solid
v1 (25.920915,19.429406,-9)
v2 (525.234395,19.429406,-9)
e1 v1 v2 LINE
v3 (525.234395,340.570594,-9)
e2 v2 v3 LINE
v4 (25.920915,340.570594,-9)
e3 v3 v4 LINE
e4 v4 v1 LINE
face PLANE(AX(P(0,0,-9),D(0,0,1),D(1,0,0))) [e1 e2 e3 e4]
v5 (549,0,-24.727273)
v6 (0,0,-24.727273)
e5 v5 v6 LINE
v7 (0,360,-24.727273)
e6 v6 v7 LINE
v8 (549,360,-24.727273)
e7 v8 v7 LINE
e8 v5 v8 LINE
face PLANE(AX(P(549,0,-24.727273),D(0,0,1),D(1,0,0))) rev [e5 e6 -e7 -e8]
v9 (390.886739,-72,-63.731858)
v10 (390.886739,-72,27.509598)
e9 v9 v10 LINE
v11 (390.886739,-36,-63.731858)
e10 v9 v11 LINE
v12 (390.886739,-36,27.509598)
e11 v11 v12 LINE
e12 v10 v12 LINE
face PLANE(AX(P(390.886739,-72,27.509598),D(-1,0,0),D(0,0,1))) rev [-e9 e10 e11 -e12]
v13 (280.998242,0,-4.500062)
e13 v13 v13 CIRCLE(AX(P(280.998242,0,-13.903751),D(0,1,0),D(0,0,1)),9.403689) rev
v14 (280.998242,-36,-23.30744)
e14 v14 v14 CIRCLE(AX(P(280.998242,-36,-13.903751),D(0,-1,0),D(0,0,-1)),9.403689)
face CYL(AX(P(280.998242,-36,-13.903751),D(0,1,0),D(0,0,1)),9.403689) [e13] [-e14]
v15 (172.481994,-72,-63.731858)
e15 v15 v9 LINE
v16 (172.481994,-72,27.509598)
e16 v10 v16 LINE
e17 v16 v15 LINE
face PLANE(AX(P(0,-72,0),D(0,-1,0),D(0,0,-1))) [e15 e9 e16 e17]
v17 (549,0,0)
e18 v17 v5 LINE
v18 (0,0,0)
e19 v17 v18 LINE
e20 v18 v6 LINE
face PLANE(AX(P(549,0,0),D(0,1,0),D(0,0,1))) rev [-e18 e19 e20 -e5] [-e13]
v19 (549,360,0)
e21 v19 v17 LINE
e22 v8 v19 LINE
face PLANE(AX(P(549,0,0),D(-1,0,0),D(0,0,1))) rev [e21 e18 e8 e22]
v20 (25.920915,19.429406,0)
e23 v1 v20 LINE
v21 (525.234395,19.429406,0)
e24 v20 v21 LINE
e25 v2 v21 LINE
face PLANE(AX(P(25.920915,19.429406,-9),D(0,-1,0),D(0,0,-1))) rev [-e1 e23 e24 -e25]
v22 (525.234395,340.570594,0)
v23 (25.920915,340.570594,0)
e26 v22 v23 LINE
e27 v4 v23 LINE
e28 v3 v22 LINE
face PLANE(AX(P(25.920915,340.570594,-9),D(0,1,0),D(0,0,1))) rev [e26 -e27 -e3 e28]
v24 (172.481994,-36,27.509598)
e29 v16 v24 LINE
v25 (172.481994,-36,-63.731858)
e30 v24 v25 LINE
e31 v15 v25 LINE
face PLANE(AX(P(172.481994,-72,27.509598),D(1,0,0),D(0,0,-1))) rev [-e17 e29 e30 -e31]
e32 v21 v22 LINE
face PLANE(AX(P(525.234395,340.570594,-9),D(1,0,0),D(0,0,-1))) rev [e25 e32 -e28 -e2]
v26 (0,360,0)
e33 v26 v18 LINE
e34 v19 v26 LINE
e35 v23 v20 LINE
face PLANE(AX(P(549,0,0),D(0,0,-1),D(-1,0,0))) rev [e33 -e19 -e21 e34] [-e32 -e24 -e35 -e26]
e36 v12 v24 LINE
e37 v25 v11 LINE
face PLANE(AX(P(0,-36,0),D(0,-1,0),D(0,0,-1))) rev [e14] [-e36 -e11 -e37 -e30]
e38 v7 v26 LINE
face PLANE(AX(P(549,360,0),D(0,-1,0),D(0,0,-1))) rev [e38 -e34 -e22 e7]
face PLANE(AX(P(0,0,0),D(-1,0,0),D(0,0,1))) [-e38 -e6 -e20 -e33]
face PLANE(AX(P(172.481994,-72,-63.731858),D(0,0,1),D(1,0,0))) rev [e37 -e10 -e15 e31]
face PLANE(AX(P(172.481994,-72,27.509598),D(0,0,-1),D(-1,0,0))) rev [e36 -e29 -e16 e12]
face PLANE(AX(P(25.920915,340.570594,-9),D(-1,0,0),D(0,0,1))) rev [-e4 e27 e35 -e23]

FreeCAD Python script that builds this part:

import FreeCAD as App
import Part
import Sketcher
from FreeCAD import Vector

doc = App.newDocument("Part")
body = doc.addObject("PartDesign::Body", "Body")

# Sketch on YZ plane
sketch1 = doc.addObject("Sketcher::SketchObject", "Sketch")
body.addObject(sketch1)
sketch1.AttachmentSupport = (doc.YZ_Plane, [""])
sketch1.MapMode = "FlatFace"
sketch1.addGeometry([
    Part.LineSegment(Vector(360, 0, 0), Vector(0, 0, 0)),
    Part.LineSegment(Vector(0, 0, 0), Vector(0, -24.727273, 0)),
    Part.LineSegment(Vector(0, -24.727273, 0), Vector(360, -24.727273, 0)),
    Part.LineSegment(Vector(360, -24.727273, 0), Vector(360, 0, 0)),
], False)
sketch1.addConstraint([
    Sketcher.Constraint("Coincident", 0, 2, 1, 1),
    Sketcher.Constraint("Coincident", 1, 2, 2, 1),
    Sketcher.Constraint("Coincident", 2, 2, 3, 1),
    Sketcher.Constraint("Coincident", 3, 2, 0, 1),
    Sketcher.Constraint("Horizontal", 0),
    Sketcher.Constraint("Vertical", 1),
    Sketcher.Constraint("Horizontal", 2),
    Sketcher.Constraint("Vertical", 3),
    Sketcher.Constraint("Coincident", 0, 2, -1, 1),
    Sketcher.Constraint("DistanceX", 0, 2, 0, 1, 360.0),
    Sketcher.Constraint("DistanceY", 1, 2, 1, 1, 24.727273),
])
pad1 = doc.addObject("PartDesign::Pad", "Pad")
body.addObject(pad1)
pad1.Profile = sketch1
pad1.Length = 549

# Sketch on XY plane
sketch2 = doc.addObject("Sketcher::SketchObject", "Sketch001")
body.addObject(sketch2)
sketch2.AttachmentSupport = (doc.XY_Plane, [""])
sketch2.MapMode = "FlatFace"
sketch2.addGeometry([
    Part.LineSegment(Vector(25.920915, 340.570594, 0), Vector(25.920915, 19.429406, 0)),
    Part.LineSegment(Vector(25.920915, 19.429406, 0), Vector(525.234395, 19.429406, 0)),
    Part.LineSegment(Vector(525.234395, 19.429406, 0), Vector(525.234395, 340.570594, 0)),
    Part.LineSegment(Vector(525.234395, 340.570594, 0), Vector(25.920915, 340.570594, 0)),
], False)
sketch2.addConstraint([
    Sketcher.Constraint("Coincident", 0, 2, 1, 1),
    Sketcher.Constraint("Coincident", 1, 2, 2, 1),
    Sketcher.Constraint("Coincident", 2, 2, 3, 1),
    Sketcher.Constraint("Coincident", 3, 2, 0, 1),
    Sketcher.Constraint("Vertical", 0),
    Sketcher.Constraint("Horizontal", 1),
    Sketcher.Constraint("Vertical", 2),
    Sketcher.Constraint("Horizontal", 3),
    Sketcher.Constraint("DistanceX", 1, 1, 1, 2, 499.31348),
    Sketcher.Constraint("DistanceY", 0, 2, 0, 1, 321.141188),
    Sketcher.Constraint("DistanceX", -1, 1, 0, 2, 25.920915),
    Sketcher.Constraint("DistanceY", -1, 1, 0, 2, 19.429406),
])
pocket1 = doc.addObject("PartDesign::Pocket", "Pocket")
body.addObject(pocket1)
pocket1.Profile = sketch2
pocket1.Length = 9

# Sketch on XZ plane
sketch3 = doc.addObject("Sketcher::SketchObject", "Sketch002")
body.addObject(sketch3)
sketch3.AttachmentSupport = (doc.XZ_Plane, [""])
sketch3.MapMode = "FlatFace"
sketch3.addGeometry(Part.Circle(Vector(280.998242, -13.903751, 0), Vector(0, 0, 1), 9.403689), False)
sketch3.addConstraint([
    Sketcher.Constraint("Diameter", 0, 18.807379),
    Sketcher.Constraint("DistanceX", -1, 1, 0, 3, 280.998242),
    Sketcher.Constraint("DistanceY", 0, 3, -1, 1, 13.903751),
])
pad2 = doc.addObject("PartDesign::Pad", "Pad001")
body.addObject(pad2)
pad2.Profile = sketch3
pad2.Length = 36

# Sketch on XZ plane
sketch4 = doc.addObject("Sketcher::SketchObject", "Sketch003")
body.addObject(sketch4)
sketch4.AttachmentSupport = (doc.XZ_Plane, [""])
sketch4.MapMode = "FlatFace"
sketch4.AttachmentOffset = App.Placement(Vector(0, 0, 36), App.Rotation())
sketch4.addGeometry([
    Part.LineSegment(Vector(172.481994, 27.509598, 0), Vector(172.481994, -63.731858, 0)),
    Part.LineSegment(Vector(172.481994, -63.731858, 0), Vector(390.886739, -63.731858, 0)),
    Part.LineSegment(Vector(390.886739, -63.731858, 0), Vector(390.886739, 27.509598, 0)),
    Part.LineSegment(Vector(390.886739, 27.509598, 0), Vector(172.481994, 27.509598, 0)),
], False)
sketch4.addConstraint([
    Sketcher.Constraint("Coincident", 0, 2, 1, 1),
    Sketcher.Constraint("Coincident", 1, 2, 2, 1),
    Sketcher.Constraint("Coincident", 2, 2, 3, 1),
    Sketcher.Constraint("Coincident", 3, 2, 0, 1),
    Sketcher.Constraint("Vertical", 0),
    Sketcher.Constraint("Horizontal", 1),
    Sketcher.Constraint("Vertical", 2),
    Sketcher.Constraint("Horizontal", 3),
    Sketcher.Constraint("DistanceY", -1, 1, 2, 2, 27.509598),
    Sketcher.Constraint("DistanceX", 1, 1, 1, 2, 218.404745),
    Sketcher.Constraint("DistanceY", 0, 2, 0, 1, 91.241456),
    Sketcher.Constraint("DistanceX", -1, 1, 1, 2, 390.886739),
])
pad3 = doc.addObject("PartDesign::Pad", "Pad002")
body.addObject(pad3)
pad3.Profile = sketch4
pad3.Length = 36

doc.recompute()
